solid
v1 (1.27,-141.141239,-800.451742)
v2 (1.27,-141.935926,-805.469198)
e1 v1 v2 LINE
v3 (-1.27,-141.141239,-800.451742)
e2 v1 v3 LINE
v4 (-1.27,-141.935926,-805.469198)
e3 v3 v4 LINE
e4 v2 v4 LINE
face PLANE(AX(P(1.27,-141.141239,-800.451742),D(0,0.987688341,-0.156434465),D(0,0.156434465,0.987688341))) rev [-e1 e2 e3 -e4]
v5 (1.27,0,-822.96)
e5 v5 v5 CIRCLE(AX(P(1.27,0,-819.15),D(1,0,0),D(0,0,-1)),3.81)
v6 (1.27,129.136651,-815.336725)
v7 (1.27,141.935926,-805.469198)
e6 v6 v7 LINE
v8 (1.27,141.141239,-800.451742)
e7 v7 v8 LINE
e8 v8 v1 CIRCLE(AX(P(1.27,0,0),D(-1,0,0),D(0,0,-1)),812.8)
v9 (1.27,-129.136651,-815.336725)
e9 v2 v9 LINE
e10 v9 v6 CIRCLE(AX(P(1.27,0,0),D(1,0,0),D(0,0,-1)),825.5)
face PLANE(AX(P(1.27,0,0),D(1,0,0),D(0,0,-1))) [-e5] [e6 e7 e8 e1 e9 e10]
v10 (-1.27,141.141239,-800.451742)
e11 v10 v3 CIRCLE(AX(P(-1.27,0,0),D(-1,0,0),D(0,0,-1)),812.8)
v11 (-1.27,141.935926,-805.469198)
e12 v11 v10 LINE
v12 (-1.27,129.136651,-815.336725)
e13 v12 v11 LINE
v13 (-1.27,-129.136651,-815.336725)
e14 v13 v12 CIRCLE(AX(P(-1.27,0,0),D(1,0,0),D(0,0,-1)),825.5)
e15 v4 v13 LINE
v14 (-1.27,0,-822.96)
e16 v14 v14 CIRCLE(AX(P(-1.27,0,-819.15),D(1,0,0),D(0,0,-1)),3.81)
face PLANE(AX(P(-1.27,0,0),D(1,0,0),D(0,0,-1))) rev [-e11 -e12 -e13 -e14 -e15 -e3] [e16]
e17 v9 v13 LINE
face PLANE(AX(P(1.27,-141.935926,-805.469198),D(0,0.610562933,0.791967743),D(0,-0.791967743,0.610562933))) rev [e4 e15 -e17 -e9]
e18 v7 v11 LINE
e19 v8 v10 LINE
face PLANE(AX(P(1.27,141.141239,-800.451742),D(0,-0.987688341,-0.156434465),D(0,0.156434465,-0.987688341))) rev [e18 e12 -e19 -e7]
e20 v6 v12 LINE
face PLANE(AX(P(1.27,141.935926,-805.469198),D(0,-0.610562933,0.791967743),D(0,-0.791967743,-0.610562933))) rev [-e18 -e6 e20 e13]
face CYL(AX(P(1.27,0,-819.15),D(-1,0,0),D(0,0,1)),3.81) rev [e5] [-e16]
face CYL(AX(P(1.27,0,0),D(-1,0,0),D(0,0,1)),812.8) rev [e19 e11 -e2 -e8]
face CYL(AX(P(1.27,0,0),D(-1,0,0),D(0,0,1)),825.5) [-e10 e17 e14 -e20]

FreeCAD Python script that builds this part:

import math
import FreeCAD as App
import Part
import Sketcher
from FreeCAD import Vector
Q = App.Units.Quantity

doc = App.newDocument("Part")
params = doc.addObject("Spreadsheet::Sheet", "Params")
for row, (alias, value) in enumerate([
    ("sketch1_radius", "32 in"),
    ("sketch1_diameter", "0.3 in"),
    ("sketch1_radius2", "32.5 in"),
    ("sketch1_length", "0.2 in"),
    ("pad1_length", "0.1 in"),
], start=1):
    params.set(f"A{row}", alias)
    params.set(f"B{row}", "=" + value)
    params.setAlias(f"B{row}", alias)

body = doc.addObject("PartDesign::Body", "Body")

sketch1 = body.newObject("Sketcher::SketchObject", "Sketch")
sketch1.AttachmentSupport = (doc.getObject("YZ_Plane"), [""])
sketch1.MapMode = "FlatFace"
sketch1.addGeometry([
    Part.LineSegment(Vector(141.9, -805.5, 0), Vector(141.1, -800.5, 0)),
    Part.ArcOfCircle(Part.Circle(Vector(0, 0, 0), Vector(0, 0, 1), 812.8), math.radians(-100), math.radians(-80)),
    Part.LineSegment(Vector(-141.1, -800.5, 0), Vector(-141.9, -805.5, 0)),
    Part.LineSegment(Vector(-141.9, -805.5, 0), Vector(-129.1, -815.3, 0)),
    Part.ArcOfCircle(Part.Circle(Vector(0, 0, 0), Vector(0, 0, 1), 825.5), math.radians(-99), math.radians(-81)),
    Part.LineSegment(Vector(129.1, -815.3, 0), Vector(141.9, -805.5, 0)),
    Part.Circle(Vector(0, -819.1, 0), Vector(0, 0, 1), 3.8),
], False)
sketch1.addConstraint([
    Sketcher.Constraint("Coincident", 0, 2, 1, 2),
    Sketcher.Constraint("Coincident", 1, 1, 2, 1),
    Sketcher.Constraint("Coincident", 2, 2, 3, 1),
    Sketcher.Constraint("Coincident", 3, 2, 4, 1),
    Sketcher.Constraint("Coincident", 4, 2, 5, 1),
    Sketcher.Constraint("Coincident", 5, 2, 0, 1),
    Sketcher.Constraint("Coincident", 1, 3, -1, 1),
    Sketcher.Constraint("Coincident", 4, 3, -1, 1),
    Sketcher.Constraint("Symmetric", 2, 2, 5, 2, -2),
    Sketcher.Constraint("PointOnObject", 6, 3, -2),
    Sketcher.Constraint("Equal", 0, 2),
    Sketcher.Constraint("Equal", 3, 5),
    Sketcher.Constraint("Radius", 1, Q("32 in")),
    Sketcher.Constraint("Diameter", 6, Q("0.3 in")),
    Sketcher.Constraint("Radius", 4, Q("32.5 in")),
    Sketcher.Constraint("Angle", 0, Q("99 deg")),
    Sketcher.Constraint("Distance", 0, Q("0.2 in")),
    Sketcher.Constraint("DistanceY", 6, 3, -1, 1, Q("32.25 in")),
    Sketcher.Constraint("DistanceY", 2, 2, -1, 1, 805.469198),
    Sketcher.Constraint("Distance", 3, 16.161359),
])
sketch1.setExpression("Constraints[12]", "Params.sketch1_radius")
sketch1.setExpression("Constraints[13]", "Params.sketch1_diameter")
sketch1.setExpression("Constraints[14]", "Params.sketch1_radius2")
sketch1.setExpression("Constraints[16]", "Params.sketch1_length")
pad1 = body.newObject("PartDesign::Pad", "Pad")
pad1.Profile = sketch1
pad1.setExpression("Length", "Params.pad1_length")
pad1.Midplane = True

doc.recompute()
